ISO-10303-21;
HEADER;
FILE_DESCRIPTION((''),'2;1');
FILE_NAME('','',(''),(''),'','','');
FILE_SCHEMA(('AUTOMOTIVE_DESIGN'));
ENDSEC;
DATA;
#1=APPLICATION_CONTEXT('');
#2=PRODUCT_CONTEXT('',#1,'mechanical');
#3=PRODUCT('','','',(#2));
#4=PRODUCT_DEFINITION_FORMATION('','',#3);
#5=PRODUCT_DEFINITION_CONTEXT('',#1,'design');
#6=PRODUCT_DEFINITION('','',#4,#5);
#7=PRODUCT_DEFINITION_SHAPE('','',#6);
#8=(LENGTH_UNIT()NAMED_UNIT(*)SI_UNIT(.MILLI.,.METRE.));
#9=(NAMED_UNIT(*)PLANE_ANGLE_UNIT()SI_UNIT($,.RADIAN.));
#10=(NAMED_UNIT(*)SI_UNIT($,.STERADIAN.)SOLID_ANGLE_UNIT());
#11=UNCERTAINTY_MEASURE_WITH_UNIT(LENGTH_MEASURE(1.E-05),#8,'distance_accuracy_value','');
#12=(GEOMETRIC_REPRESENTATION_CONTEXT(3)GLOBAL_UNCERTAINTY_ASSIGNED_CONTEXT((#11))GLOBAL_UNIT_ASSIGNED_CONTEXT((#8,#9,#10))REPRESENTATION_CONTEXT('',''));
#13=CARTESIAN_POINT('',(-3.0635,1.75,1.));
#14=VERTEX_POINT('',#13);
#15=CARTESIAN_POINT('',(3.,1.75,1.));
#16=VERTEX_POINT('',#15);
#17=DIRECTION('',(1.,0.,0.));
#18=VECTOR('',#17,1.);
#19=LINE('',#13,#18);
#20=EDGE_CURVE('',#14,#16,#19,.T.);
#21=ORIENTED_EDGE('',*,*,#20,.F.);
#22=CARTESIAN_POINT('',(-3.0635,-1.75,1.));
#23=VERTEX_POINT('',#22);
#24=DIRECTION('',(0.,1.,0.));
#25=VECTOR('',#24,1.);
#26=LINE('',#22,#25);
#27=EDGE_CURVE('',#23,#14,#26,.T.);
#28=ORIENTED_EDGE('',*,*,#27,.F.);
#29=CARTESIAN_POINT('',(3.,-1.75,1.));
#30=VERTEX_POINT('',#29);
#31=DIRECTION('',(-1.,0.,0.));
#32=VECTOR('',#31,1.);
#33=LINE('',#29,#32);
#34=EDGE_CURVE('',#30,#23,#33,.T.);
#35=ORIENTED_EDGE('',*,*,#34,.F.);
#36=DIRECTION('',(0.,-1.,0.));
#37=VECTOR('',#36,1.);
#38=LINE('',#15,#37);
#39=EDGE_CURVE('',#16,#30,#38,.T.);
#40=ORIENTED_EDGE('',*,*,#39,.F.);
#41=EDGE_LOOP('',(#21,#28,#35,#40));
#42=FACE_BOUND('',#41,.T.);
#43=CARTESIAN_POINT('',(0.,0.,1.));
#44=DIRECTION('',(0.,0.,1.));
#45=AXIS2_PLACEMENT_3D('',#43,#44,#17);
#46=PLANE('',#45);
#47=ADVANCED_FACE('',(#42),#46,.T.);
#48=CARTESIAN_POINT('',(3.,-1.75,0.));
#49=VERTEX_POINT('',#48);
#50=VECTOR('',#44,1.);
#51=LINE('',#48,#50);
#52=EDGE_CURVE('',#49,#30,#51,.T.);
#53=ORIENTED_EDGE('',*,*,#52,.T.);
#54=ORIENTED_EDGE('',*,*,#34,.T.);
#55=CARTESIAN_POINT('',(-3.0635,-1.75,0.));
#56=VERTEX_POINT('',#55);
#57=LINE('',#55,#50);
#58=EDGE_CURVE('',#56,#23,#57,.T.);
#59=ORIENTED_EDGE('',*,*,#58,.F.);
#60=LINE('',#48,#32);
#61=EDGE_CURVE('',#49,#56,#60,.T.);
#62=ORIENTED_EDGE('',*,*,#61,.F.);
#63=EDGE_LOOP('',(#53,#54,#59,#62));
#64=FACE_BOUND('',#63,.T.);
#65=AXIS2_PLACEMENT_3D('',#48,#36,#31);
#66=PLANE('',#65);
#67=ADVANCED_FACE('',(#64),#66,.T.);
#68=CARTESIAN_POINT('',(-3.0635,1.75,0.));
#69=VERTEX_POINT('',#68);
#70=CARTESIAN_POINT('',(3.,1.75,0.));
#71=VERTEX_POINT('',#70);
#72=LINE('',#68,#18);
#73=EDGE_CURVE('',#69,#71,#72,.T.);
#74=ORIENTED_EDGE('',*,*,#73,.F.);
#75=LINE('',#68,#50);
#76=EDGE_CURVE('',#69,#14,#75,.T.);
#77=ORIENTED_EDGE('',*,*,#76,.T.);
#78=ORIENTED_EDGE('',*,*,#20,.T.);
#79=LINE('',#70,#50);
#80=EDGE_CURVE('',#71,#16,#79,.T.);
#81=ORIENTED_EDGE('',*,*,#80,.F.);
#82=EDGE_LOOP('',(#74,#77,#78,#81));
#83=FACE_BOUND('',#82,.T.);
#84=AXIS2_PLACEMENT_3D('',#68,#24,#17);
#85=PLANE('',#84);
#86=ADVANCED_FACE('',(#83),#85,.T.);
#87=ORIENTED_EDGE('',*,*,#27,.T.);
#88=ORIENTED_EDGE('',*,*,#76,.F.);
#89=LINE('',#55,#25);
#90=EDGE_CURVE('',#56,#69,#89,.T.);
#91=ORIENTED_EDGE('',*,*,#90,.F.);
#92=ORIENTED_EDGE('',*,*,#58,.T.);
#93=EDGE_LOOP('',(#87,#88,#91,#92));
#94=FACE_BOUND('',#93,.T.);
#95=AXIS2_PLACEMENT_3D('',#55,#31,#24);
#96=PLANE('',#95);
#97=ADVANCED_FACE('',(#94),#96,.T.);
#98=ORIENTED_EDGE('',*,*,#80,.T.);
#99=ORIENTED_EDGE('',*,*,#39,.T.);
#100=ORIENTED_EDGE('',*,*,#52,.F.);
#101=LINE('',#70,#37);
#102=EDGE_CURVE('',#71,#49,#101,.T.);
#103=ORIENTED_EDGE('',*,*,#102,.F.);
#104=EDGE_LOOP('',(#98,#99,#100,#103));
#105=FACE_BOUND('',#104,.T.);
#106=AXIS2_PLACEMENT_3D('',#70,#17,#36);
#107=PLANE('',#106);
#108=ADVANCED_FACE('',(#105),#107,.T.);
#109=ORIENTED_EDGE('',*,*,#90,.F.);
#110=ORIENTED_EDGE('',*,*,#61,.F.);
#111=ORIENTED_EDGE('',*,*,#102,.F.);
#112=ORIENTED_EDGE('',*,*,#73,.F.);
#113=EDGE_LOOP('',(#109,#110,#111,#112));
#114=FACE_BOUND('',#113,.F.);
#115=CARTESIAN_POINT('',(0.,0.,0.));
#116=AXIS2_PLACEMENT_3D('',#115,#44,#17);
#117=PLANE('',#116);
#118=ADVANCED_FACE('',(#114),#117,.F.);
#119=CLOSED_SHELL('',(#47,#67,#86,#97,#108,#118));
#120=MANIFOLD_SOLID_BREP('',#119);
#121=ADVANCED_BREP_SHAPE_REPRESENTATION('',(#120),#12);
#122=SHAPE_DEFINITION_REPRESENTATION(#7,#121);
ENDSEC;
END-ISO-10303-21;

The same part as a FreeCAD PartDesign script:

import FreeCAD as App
import Part
import Sketcher
from FreeCAD import Vector
Q = App.Units.Quantity


def add_polygon(sketch, points):
    """Adds a closed chain of lines whose ends are joined by coincident constraints."""
    first, n = sketch.GeometryCount, len(points)
    for a, b in zip(points, points[1:] + points[:1]):
        sketch.addGeometry(Part.LineSegment(App.Vector(*a, 0), App.Vector(*b, 0)), False)
    for i in range(n):
        sketch.addConstraint(Sketcher.Constraint("Coincident", first + i, 2, first + (i + 1) % n, 1))

doc = App.newDocument("Part")
body = doc.addObject("PartDesign::Body", "Body")

sketch1 = body.newObject("Sketcher::SketchObject", "Sketch")
sketch1.AttachmentSupport = (doc.getObject("XY_Plane"), [""])
sketch1.MapMode = "FlatFace"
add_polygon(sketch1, [(3, 1.8), (-3.1, 1.8), (-3.1, -1.8), (3, -1.8)])
sketch1.addConstraint([
    Sketcher.Constraint("Horizontal", 0),
    Sketcher.Constraint("Vertical", 1),
    Sketcher.Constraint("Horizontal", 2),
    Sketcher.Constraint("Vertical", 3),
    Sketcher.Constraint("DistanceY", 1, 2, 1, 1, Q("3.5 mm")),
    Sketcher.Constraint("DistanceX", -1, 1, 2, 2, Q("3 mm")),
    Sketcher.Constraint("DistanceY", -1, 1, 0, 2, Q("1.75 mm")),
    Sketcher.Constraint("DistanceX", 0, 2, 0, 1, Q("6.0635 mm")),
])
pad1 = body.newObject("PartDesign::Pad", "Pad")
pad1.Profile = sketch1
pad1.Length = 1

doc.recompute()
